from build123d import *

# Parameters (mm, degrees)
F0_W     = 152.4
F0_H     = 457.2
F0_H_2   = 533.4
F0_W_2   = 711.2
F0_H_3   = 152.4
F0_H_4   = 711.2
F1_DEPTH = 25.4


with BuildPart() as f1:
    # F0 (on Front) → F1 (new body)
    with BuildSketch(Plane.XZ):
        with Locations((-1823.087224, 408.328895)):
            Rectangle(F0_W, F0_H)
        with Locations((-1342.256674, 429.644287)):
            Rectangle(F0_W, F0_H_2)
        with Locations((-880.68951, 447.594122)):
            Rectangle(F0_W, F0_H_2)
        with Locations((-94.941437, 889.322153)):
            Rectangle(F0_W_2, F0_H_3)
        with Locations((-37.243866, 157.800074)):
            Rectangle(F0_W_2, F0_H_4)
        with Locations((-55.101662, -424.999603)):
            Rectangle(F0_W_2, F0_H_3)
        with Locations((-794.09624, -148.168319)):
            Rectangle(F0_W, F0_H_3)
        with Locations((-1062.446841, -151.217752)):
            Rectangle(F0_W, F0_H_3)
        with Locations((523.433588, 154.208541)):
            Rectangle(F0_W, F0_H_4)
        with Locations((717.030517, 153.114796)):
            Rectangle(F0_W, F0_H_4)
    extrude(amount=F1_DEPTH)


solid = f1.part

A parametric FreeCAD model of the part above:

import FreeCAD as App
import Part
import Sketcher
from FreeCAD import Vector
Q = App.Units.Quantity


def add_polygon(sketch, points):
    """Adds a closed chain of lines whose ends are joined by coincident constraints."""
    first, n = sketch.GeometryCount, len(points)
    for a, b in zip(points, points[1:] + points[:1]):
        sketch.addGeometry(Part.LineSegment(App.Vector(*a, 0), App.Vector(*b, 0)), False)
    for i in range(n):
        sketch.addConstraint(Sketcher.Constraint("Coincident", first + i, 2, first + (i + 1) % n, 1))

doc = App.newDocument("Part")
body = doc.addObject("PartDesign::Body", "Body")
body.AllowCompound = True

sketch1 = doc.addObject("Sketcher::SketchObject", "Sketch")
body.addObject(sketch1)
sketch1.AttachmentSupport = (doc.XZ_Plane, [""])
sketch1.MapMode = "FlatFace"
add_polygon(sketch1, [(-1899, 637), (-1899, 180), (-1747, 180), (-1747, 637)])
add_polygon(sketch1, [(-1418, 696), (-1418, 163), (-1266, 163), (-1266, 696)])
add_polygon(sketch1, [(-957, 714), (-957, 181), (-804, 181), (-804, 714)])
add_polygon(sketch1, [(-451, 966), (-451, 813), (261, 813), (261, 966)])
add_polygon(sketch1, [(-393, 513), (-393, -198), (318, -198), (318, 513)])
add_polygon(sketch1, [(-411, -349), (-411, -501), (300, -501), (300, -349)])
add_polygon(sketch1, [(-870, -72), (-870, -224), (-718, -224), (-718, -72)])
add_polygon(sketch1, [(-1139, -75), (-1139, -227), (-986, -227), (-986, -75)])
add_polygon(sketch1, [(447, 510), (447, -201), (600, -201), (600, 510)])
add_polygon(sketch1, [(641, 509), (641, -202), (793, -202), (793, 509)])
sketch1.addConstraint([
    Sketcher.Constraint("Vertical", 0),
    Sketcher.Constraint("Horizontal", 1),
    Sketcher.Constraint("Vertical", 2),
    Sketcher.Constraint("Horizontal", 3),
    Sketcher.Constraint("Vertical", 4),
    Sketcher.Constraint("Horizontal", 5),
    Sketcher.Constraint("Vertical", 6),
    Sketcher.Constraint("Horizontal", 7),
    Sketcher.Constraint("Vertical", 8),
    Sketcher.Constraint("Horizontal", 9),
    Sketcher.Constraint("Vertical", 10),
    Sketcher.Constraint("Horizontal", 11),
    Sketcher.Constraint("Vertical", 12),
    Sketcher.Constraint("Horizontal", 13),
    Sketcher.Constraint("Vertical", 14),
    Sketcher.Constraint("Horizontal", 15),
    Sketcher.Constraint("Vertical", 16),
    Sketcher.Constraint("Horizontal", 17),
    Sketcher.Constraint("Vertical", 18),
    Sketcher.Constraint("Horizontal", 19),
    Sketcher.Constraint("Vertical", 20),
    Sketcher.Constraint("Horizontal", 21),
    Sketcher.Constraint("Vertical", 22),
    Sketcher.Constraint("Horizontal", 23),
    Sketcher.Constraint("Vertical", 24),
    Sketcher.Constraint("Horizontal", 25),
    Sketcher.Constraint("Vertical", 26),
    Sketcher.Constraint("Horizontal", 27),
    Sketcher.Constraint("Vertical", 28),
    Sketcher.Constraint("Horizontal", 29),
    Sketcher.Constraint("Vertical", 30),
    Sketcher.Constraint("Horizontal", 31),
    Sketcher.Constraint("Vertical", 32),
    Sketcher.Constraint("Horizontal", 33),
    Sketcher.Constraint("Vertical", 34),
    Sketcher.Constraint("Horizontal", 35),
    Sketcher.Constraint("Vertical", 36),
    Sketcher.Constraint("Horizontal", 37),
    Sketcher.Constraint("Vertical", 38),
    Sketcher.Constraint("Horizontal", 39),
    Sketcher.Constraint("Equal", 3, 5),
    Sketcher.Constraint("Equal", 7, 9),
    Sketcher.Constraint("Equal", 15, 17),
    Sketcher.Constraint("Equal", 19, 21),
    Sketcher.Constraint("Equal", 11, 25),
    Sketcher.Constraint("Equal", 27, 29),
    Sketcher.Constraint("Equal", 31, 33),
    Sketcher.Constraint("Equal", 35, 37),
    Sketcher.Constraint("Equal", 6, 8),
    Sketcher.Constraint("Equal", 39, 12),
    Sketcher.Constraint("Equal", 23, 16),
    Sketcher.Constraint("Equal", 14, 20),
    Sketcher.Constraint("Equal", 22, 24),
    Sketcher.Constraint("Equal", 26, 28),
    Sketcher.Constraint("Equal", 18, 32),
    Sketcher.Constraint("Equal", 34, 36),
    Sketcher.Constraint("DistanceX", 1, 1, 1, 2, Q("6 in")),
    Sketcher.Constraint("DistanceX", 13, 1, 13, 2, Q("28 in")),
    Sketcher.Constraint("DistanceY", 0, 2, 0, 1, Q("18 in")),
    Sketcher.Constraint("DistanceY", 4, 2, 4, 1, Q("21 in")),
    Sketcher.Constraint("DistanceX", 28, 2, 24, 2, 268.350601),
    Sketcher.Constraint("DistanceY", 22, 2, 36, 2, 146.314399),
    Sketcher.Constraint("DistanceX", 8, 2, -1, 1, 956.88951),
    Sketcher.Constraint("DistanceY", -1, 1, 10, 2, 714.294122),
    Sketcher.Constraint("DistanceX", 20, 2, -1, 1, 410.701662),
    Sketcher.Constraint("DistanceX", 24, 2, -1, 1, 870.29624),
    Sketcher.Constraint("DistanceY", 24, 2, -1, 1, 224.368319),
    Sketcher.Constraint("DistanceY", 28, 2, -1, 1, 227.417752),
    Sketcher.Constraint("DistanceX", -1, 1, 32, 2, 447.233588),
    Sketcher.Constraint("DistanceY", 32, 2, -1, 1, 201.391459),
    Sketcher.Constraint("DistanceX", 1, 2, 4, 2, 328.43055),
    Sketcher.Constraint("DistanceY", 4, 2, 2, 2, 473.984608),
    Sketcher.Constraint("DistanceY", 10, 2, 12, 2, 98.828031),
    Sketcher.Constraint("DistanceY", 16, 2, 9, 2, 378.694048),
    Sketcher.Constraint("DistanceX", 5, 2, 16, 2, 873.212808),
    Sketcher.Constraint("DistanceX", 12, 2, 16, 2, 57.697571),
    Sketcher.Constraint("DistanceY", 28, 2, 5, 2, 390.362039),
    Sketcher.Constraint("DistanceX", 33, 2, 36, 2, 41.196929),
    Sketcher.Constraint("DistanceY", 36, 2, 17, 2, 4.685278),
    Sketcher.Constraint("DistanceX", 0, 2, -1, 1, 1899.287224),
])
pad1 = doc.addObject("PartDesign::Pad", "Pad")
body.addObject(pad1)
pad1.Profile = sketch1
pad1.Length = Q("1 in")

doc.recompute()
